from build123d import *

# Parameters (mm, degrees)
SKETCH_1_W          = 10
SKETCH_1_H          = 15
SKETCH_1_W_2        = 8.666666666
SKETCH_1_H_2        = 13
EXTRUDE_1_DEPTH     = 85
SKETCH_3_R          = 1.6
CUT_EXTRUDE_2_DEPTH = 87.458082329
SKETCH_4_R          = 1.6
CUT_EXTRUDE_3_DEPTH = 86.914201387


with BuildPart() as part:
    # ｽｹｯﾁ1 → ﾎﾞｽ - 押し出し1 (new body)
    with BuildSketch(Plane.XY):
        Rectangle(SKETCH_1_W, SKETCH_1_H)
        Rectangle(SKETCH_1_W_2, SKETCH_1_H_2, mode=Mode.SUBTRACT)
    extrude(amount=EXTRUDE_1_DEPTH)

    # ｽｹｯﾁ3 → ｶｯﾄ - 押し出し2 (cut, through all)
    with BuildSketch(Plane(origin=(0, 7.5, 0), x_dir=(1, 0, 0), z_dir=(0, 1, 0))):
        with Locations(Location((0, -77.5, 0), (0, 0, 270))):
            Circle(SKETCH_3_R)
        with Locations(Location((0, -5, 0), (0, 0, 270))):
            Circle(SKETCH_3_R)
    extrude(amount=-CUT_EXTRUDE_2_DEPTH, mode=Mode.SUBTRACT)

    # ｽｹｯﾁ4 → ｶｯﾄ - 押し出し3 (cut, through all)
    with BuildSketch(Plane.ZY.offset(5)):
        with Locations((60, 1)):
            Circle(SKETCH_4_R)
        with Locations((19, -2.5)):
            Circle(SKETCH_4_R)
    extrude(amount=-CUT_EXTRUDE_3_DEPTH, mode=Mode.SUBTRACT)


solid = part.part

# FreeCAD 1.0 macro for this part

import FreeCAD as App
import Part
import Sketcher

V = App.Vector

doc = App.newDocument("Part")
body = doc.addObject("PartDesign::Body", "Body")

# Sketch on XY plane
sketch1 = body.newObject("Sketcher::SketchObject", "Sketch")
sketch1.AttachmentSupport = (doc.getObject("XY_Plane"), [""])
sketch1.MapMode = "FlatFace"
sketch1.addGeometry([
    Part.LineSegment(V(-5, 8, 0), V(-5, -8, 0)),  # 0
    Part.LineSegment(V(-5, -8, 0), V(5, -8, 0)),  # 1
    Part.LineSegment(V(5, -8, 0), V(5, 8, 0)),  # 2
    Part.LineSegment(V(5, 8, 0), V(-5, 8, 0)),  # 3
    Part.LineSegment(V(4, -6, 0), V(-4, -6, 0)),  # 4
    Part.LineSegment(V(-4, -6, 0), V(-4, 6, 0)),  # 5
    Part.LineSegment(V(-4, 6, 0), V(4, 6, 0)),  # 6
    Part.LineSegment(V(4, 6, 0), V(4, -6, 0)),  # 7
], False)
sketch1.addConstraint([
    Sketcher.Constraint("Coincident", 0, 2, 1, 1),
    Sketcher.Constraint("Coincident", 1, 2, 2, 1),
    Sketcher.Constraint("Coincident", 2, 2, 3, 1),
    Sketcher.Constraint("Coincident", 3, 2, 0, 1),
    Sketcher.Constraint("Coincident", 4, 2, 5, 1),
    Sketcher.Constraint("Coincident", 5, 2, 6, 1),
    Sketcher.Constraint("Coincident", 6, 2, 7, 1),
    Sketcher.Constraint("Coincident", 7, 2, 4, 1),
    Sketcher.Constraint("Vertical", 0),
    Sketcher.Constraint("Horizontal", 1),
    Sketcher.Constraint("Vertical", 2),
    Sketcher.Constraint("Horizontal", 3),
    Sketcher.Constraint("Horizontal", 4),
    Sketcher.Constraint("Vertical", 5),
    Sketcher.Constraint("Horizontal", 6),
    Sketcher.Constraint("Vertical", 7),
    Sketcher.Constraint("Symmetric", 0, 2, 2, 2, -1, 1),
    Sketcher.Constraint("Symmetric", 4, 2, 6, 2, -1, 1),
    Sketcher.Constraint("DistanceX", 1, 1, 1, 2, 10.0),
    Sketcher.Constraint("DistanceY", 0, 2, 0, 1, 15.0),
    Sketcher.Constraint("DistanceY", 5, 1, 5, 2, 13.0),
    Sketcher.Constraint("DistanceX", 4, 2, 4, 1, 8.666667),
])
pad1 = body.newObject("PartDesign::Pad", "Pad")
pad1.Profile = sketch1
pad1.Length = 85

# Sketch on XZ plane
sketch2 = body.newObject("Sketcher::SketchObject", "Sketch001")
sketch2.AttachmentSupport = (doc.getObject("XZ_Plane"), [""])
sketch2.MapMode = "FlatFace"
sketch2.AttachmentOffset = App.Placement(V(0, 0, -7.5), App.Rotation())
sketch2.addGeometry([
    Part.Circle(V(0, 77.5, 0), V(0, 0, 1), 1.6),
    Part.Circle(V(0, 5, 0), V(0, 0, 1), 1.6),
], False)
sketch2.addConstraint([
    Sketcher.Constraint("Equal", 0, 1),
    Sketcher.Constraint("PointOnObject", 0, 3, -2),
    Sketcher.Constraint("PointOnObject", 1, 3, -2),
    Sketcher.Constraint("Diameter", 0, 3.2),
    Sketcher.Constraint("DistanceY", -1, 1, 1, 3, 5.0),
    Sketcher.Constraint("DistanceY", -1, 1, 0, 3, 77.5),
])
pocket1 = body.newObject("PartDesign::Pocket", "Pocket")
pocket1.Profile = sketch2
pocket1.Type = "ThroughAll"
pocket1.Reversed = True

# Sketch on YZ plane
sketch3 = body.newObject("Sketcher::SketchObject", "Sketch002")
sketch3.AttachmentSupport = (doc.getObject("YZ_Plane"), [""])
sketch3.MapMode = "FlatFace"
sketch3.AttachmentOffset = App.Placement(V(0, 0, -5), App.Rotation())
sketch3.addGeometry([
    Part.Circle(V(1, 60, 0), V(0, 0, 1), 1.6),
    Part.Circle(V(-2.5, 19, 0), V(0, 0, 1), 1.6),
], False)
sketch3.addConstraint([
    Sketcher.Constraint("Equal", 0, 1),
    Sketcher.Constraint("Diameter", 0, 3.2),
    Sketcher.Constraint("DistanceX", -1, 1, 0, 3, 1.0),
    Sketcher.Constraint("DistanceY", -1, 1, 0, 3, 60.0),
    Sketcher.Constraint("DistanceY", -1, 1, 1, 3, 19.0),
    Sketcher.Constraint("DistanceX", 1, 3, -1, 1, 2.5),
])
pocket2 = body.newObject("PartDesign::Pocket", "Pocket001")
pocket2.Profile = sketch3
pocket2.Type = "ThroughAll"
pocket2.Reversed = True

doc.recompute()
